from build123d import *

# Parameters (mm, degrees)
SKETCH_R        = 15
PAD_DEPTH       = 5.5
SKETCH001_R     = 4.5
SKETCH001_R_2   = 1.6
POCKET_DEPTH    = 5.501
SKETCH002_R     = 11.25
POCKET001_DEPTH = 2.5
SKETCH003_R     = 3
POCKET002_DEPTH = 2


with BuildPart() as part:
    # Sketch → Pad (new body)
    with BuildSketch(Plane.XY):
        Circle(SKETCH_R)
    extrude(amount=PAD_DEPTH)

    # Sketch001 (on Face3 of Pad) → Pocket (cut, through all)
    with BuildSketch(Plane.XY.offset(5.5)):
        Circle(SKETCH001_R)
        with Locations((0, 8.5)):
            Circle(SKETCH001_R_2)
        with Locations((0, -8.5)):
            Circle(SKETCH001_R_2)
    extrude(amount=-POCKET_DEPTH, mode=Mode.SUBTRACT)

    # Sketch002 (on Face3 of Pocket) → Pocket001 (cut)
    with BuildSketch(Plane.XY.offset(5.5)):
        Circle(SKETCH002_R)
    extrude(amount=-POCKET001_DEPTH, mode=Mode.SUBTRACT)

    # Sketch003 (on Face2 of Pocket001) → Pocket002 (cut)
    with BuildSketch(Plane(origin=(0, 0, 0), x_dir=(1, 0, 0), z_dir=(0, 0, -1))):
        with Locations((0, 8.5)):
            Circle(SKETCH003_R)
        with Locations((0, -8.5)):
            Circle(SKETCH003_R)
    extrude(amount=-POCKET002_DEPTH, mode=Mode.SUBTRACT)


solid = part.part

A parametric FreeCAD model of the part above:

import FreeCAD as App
import Part
import Sketcher

V = App.Vector

doc = App.newDocument("Part")
body = doc.addObject("PartDesign::Body", "Body")

# Sketch on XY plane
sketch1 = doc.addObject("Sketcher::SketchObject", "Sketch")
body.addObject(sketch1)
sketch1.AttachmentSupport = (doc.XY_Plane, [""])
sketch1.MapMode = "FlatFace"
sketch1.addGeometry(Part.Circle(V(0, 0, 0), V(0, 0, 1), 15), False)
sketch1.addConstraint([
    Sketcher.Constraint("Coincident", 0, 3, -1, 1),
    Sketcher.Constraint("Diameter", 0, 30.0),
])
pad1 = doc.addObject("PartDesign::Pad", "Pad")
body.addObject(pad1)
pad1.Profile = sketch1
pad1.Length = 5.5

# Sketch on XY plane
sketch2 = doc.addObject("Sketcher::SketchObject", "Sketch001")
body.addObject(sketch2)
sketch2.AttachmentSupport = (doc.XY_Plane, [""])
sketch2.MapMode = "FlatFace"
sketch2.AttachmentOffset = App.Placement(V(0, 0, 5.5), App.Rotation())
sketch2.addGeometry([
    Part.Circle(V(0, 0, 0), V(0, 0, 1), 4.5),
    Part.Circle(V(0, 8.5, 0), V(0, 0, 1), 1.6),
    Part.Circle(V(0, -8.5, 0), V(0, 0, 1), 1.6),
], False)
sketch2.addConstraint([
    Sketcher.Constraint("Coincident", 0, 3, -1, 1),
    Sketcher.Constraint("Equal", 1, 2),
    Sketcher.Constraint("Symmetric", 1, 3, 2, 3, -1, 1),
    Sketcher.Constraint("PointOnObject", 1, 3, -2),
    Sketcher.Constraint("Diameter", 0, 9.0),
    Sketcher.Constraint("Diameter", 1, 3.2),
    Sketcher.Constraint("DistanceY", 2, 3, 1, 3, 17.0),
])
pocket1 = doc.addObject("PartDesign::Pocket", "Pocket")
body.addObject(pocket1)
pocket1.Profile = sketch2
pocket1.Type = "ThroughAll"

# Sketch on XY plane
sketch3 = doc.addObject("Sketcher::SketchObject", "Sketch002")
body.addObject(sketch3)
sketch3.AttachmentSupport = (doc.XY_Plane, [""])
sketch3.MapMode = "FlatFace"
sketch3.AttachmentOffset = App.Placement(V(0, 0, 5.5), App.Rotation())
sketch3.addGeometry(Part.Circle(V(0, 0, 0), V(0, 0, 1), 11), False)
sketch3.addConstraint([
    Sketcher.Constraint("Coincident", 0, 3, -1, 1),
    Sketcher.Constraint("Diameter", 0, 22.5),
])
pocket2 = doc.addObject("PartDesign::Pocket", "Pocket001")
body.addObject(pocket2)
pocket2.Profile = sketch3
pocket2.Length = 2.5

# Sketch on XY plane
sketch4 = doc.addObject("Sketcher::SketchObject", "Sketch003")
body.addObject(sketch4)
sketch4.AttachmentSupport = (doc.XY_Plane, [""])
sketch4.MapMode = "FlatFace"
sketch4.addGeometry([
    Part.Circle(V(0, -8.5, 0), V(0, 0, 1), 3),
    Part.Circle(V(0, 8.5, 0), V(0, 0, 1), 3),
], False)
sketch4.addConstraint([
    Sketcher.Constraint("Equal", 0, 1),
    Sketcher.Constraint("Symmetric", 0, 3, 1, 3, -1, 1),
    Sketcher.Constraint("PointOnObject", 0, 3, -2),
    Sketcher.Constraint("Diameter", 0, 6.0),
    Sketcher.Constraint("DistanceY", 0, 3, 1, 3, 17.0),
])
pocket3 = doc.addObject("PartDesign::Pocket", "Pocket002")
body.addObject(pocket3)
pocket3.Profile = sketch4
pocket3.Length = 2
pocket3.Reversed = True

doc.recompute()
